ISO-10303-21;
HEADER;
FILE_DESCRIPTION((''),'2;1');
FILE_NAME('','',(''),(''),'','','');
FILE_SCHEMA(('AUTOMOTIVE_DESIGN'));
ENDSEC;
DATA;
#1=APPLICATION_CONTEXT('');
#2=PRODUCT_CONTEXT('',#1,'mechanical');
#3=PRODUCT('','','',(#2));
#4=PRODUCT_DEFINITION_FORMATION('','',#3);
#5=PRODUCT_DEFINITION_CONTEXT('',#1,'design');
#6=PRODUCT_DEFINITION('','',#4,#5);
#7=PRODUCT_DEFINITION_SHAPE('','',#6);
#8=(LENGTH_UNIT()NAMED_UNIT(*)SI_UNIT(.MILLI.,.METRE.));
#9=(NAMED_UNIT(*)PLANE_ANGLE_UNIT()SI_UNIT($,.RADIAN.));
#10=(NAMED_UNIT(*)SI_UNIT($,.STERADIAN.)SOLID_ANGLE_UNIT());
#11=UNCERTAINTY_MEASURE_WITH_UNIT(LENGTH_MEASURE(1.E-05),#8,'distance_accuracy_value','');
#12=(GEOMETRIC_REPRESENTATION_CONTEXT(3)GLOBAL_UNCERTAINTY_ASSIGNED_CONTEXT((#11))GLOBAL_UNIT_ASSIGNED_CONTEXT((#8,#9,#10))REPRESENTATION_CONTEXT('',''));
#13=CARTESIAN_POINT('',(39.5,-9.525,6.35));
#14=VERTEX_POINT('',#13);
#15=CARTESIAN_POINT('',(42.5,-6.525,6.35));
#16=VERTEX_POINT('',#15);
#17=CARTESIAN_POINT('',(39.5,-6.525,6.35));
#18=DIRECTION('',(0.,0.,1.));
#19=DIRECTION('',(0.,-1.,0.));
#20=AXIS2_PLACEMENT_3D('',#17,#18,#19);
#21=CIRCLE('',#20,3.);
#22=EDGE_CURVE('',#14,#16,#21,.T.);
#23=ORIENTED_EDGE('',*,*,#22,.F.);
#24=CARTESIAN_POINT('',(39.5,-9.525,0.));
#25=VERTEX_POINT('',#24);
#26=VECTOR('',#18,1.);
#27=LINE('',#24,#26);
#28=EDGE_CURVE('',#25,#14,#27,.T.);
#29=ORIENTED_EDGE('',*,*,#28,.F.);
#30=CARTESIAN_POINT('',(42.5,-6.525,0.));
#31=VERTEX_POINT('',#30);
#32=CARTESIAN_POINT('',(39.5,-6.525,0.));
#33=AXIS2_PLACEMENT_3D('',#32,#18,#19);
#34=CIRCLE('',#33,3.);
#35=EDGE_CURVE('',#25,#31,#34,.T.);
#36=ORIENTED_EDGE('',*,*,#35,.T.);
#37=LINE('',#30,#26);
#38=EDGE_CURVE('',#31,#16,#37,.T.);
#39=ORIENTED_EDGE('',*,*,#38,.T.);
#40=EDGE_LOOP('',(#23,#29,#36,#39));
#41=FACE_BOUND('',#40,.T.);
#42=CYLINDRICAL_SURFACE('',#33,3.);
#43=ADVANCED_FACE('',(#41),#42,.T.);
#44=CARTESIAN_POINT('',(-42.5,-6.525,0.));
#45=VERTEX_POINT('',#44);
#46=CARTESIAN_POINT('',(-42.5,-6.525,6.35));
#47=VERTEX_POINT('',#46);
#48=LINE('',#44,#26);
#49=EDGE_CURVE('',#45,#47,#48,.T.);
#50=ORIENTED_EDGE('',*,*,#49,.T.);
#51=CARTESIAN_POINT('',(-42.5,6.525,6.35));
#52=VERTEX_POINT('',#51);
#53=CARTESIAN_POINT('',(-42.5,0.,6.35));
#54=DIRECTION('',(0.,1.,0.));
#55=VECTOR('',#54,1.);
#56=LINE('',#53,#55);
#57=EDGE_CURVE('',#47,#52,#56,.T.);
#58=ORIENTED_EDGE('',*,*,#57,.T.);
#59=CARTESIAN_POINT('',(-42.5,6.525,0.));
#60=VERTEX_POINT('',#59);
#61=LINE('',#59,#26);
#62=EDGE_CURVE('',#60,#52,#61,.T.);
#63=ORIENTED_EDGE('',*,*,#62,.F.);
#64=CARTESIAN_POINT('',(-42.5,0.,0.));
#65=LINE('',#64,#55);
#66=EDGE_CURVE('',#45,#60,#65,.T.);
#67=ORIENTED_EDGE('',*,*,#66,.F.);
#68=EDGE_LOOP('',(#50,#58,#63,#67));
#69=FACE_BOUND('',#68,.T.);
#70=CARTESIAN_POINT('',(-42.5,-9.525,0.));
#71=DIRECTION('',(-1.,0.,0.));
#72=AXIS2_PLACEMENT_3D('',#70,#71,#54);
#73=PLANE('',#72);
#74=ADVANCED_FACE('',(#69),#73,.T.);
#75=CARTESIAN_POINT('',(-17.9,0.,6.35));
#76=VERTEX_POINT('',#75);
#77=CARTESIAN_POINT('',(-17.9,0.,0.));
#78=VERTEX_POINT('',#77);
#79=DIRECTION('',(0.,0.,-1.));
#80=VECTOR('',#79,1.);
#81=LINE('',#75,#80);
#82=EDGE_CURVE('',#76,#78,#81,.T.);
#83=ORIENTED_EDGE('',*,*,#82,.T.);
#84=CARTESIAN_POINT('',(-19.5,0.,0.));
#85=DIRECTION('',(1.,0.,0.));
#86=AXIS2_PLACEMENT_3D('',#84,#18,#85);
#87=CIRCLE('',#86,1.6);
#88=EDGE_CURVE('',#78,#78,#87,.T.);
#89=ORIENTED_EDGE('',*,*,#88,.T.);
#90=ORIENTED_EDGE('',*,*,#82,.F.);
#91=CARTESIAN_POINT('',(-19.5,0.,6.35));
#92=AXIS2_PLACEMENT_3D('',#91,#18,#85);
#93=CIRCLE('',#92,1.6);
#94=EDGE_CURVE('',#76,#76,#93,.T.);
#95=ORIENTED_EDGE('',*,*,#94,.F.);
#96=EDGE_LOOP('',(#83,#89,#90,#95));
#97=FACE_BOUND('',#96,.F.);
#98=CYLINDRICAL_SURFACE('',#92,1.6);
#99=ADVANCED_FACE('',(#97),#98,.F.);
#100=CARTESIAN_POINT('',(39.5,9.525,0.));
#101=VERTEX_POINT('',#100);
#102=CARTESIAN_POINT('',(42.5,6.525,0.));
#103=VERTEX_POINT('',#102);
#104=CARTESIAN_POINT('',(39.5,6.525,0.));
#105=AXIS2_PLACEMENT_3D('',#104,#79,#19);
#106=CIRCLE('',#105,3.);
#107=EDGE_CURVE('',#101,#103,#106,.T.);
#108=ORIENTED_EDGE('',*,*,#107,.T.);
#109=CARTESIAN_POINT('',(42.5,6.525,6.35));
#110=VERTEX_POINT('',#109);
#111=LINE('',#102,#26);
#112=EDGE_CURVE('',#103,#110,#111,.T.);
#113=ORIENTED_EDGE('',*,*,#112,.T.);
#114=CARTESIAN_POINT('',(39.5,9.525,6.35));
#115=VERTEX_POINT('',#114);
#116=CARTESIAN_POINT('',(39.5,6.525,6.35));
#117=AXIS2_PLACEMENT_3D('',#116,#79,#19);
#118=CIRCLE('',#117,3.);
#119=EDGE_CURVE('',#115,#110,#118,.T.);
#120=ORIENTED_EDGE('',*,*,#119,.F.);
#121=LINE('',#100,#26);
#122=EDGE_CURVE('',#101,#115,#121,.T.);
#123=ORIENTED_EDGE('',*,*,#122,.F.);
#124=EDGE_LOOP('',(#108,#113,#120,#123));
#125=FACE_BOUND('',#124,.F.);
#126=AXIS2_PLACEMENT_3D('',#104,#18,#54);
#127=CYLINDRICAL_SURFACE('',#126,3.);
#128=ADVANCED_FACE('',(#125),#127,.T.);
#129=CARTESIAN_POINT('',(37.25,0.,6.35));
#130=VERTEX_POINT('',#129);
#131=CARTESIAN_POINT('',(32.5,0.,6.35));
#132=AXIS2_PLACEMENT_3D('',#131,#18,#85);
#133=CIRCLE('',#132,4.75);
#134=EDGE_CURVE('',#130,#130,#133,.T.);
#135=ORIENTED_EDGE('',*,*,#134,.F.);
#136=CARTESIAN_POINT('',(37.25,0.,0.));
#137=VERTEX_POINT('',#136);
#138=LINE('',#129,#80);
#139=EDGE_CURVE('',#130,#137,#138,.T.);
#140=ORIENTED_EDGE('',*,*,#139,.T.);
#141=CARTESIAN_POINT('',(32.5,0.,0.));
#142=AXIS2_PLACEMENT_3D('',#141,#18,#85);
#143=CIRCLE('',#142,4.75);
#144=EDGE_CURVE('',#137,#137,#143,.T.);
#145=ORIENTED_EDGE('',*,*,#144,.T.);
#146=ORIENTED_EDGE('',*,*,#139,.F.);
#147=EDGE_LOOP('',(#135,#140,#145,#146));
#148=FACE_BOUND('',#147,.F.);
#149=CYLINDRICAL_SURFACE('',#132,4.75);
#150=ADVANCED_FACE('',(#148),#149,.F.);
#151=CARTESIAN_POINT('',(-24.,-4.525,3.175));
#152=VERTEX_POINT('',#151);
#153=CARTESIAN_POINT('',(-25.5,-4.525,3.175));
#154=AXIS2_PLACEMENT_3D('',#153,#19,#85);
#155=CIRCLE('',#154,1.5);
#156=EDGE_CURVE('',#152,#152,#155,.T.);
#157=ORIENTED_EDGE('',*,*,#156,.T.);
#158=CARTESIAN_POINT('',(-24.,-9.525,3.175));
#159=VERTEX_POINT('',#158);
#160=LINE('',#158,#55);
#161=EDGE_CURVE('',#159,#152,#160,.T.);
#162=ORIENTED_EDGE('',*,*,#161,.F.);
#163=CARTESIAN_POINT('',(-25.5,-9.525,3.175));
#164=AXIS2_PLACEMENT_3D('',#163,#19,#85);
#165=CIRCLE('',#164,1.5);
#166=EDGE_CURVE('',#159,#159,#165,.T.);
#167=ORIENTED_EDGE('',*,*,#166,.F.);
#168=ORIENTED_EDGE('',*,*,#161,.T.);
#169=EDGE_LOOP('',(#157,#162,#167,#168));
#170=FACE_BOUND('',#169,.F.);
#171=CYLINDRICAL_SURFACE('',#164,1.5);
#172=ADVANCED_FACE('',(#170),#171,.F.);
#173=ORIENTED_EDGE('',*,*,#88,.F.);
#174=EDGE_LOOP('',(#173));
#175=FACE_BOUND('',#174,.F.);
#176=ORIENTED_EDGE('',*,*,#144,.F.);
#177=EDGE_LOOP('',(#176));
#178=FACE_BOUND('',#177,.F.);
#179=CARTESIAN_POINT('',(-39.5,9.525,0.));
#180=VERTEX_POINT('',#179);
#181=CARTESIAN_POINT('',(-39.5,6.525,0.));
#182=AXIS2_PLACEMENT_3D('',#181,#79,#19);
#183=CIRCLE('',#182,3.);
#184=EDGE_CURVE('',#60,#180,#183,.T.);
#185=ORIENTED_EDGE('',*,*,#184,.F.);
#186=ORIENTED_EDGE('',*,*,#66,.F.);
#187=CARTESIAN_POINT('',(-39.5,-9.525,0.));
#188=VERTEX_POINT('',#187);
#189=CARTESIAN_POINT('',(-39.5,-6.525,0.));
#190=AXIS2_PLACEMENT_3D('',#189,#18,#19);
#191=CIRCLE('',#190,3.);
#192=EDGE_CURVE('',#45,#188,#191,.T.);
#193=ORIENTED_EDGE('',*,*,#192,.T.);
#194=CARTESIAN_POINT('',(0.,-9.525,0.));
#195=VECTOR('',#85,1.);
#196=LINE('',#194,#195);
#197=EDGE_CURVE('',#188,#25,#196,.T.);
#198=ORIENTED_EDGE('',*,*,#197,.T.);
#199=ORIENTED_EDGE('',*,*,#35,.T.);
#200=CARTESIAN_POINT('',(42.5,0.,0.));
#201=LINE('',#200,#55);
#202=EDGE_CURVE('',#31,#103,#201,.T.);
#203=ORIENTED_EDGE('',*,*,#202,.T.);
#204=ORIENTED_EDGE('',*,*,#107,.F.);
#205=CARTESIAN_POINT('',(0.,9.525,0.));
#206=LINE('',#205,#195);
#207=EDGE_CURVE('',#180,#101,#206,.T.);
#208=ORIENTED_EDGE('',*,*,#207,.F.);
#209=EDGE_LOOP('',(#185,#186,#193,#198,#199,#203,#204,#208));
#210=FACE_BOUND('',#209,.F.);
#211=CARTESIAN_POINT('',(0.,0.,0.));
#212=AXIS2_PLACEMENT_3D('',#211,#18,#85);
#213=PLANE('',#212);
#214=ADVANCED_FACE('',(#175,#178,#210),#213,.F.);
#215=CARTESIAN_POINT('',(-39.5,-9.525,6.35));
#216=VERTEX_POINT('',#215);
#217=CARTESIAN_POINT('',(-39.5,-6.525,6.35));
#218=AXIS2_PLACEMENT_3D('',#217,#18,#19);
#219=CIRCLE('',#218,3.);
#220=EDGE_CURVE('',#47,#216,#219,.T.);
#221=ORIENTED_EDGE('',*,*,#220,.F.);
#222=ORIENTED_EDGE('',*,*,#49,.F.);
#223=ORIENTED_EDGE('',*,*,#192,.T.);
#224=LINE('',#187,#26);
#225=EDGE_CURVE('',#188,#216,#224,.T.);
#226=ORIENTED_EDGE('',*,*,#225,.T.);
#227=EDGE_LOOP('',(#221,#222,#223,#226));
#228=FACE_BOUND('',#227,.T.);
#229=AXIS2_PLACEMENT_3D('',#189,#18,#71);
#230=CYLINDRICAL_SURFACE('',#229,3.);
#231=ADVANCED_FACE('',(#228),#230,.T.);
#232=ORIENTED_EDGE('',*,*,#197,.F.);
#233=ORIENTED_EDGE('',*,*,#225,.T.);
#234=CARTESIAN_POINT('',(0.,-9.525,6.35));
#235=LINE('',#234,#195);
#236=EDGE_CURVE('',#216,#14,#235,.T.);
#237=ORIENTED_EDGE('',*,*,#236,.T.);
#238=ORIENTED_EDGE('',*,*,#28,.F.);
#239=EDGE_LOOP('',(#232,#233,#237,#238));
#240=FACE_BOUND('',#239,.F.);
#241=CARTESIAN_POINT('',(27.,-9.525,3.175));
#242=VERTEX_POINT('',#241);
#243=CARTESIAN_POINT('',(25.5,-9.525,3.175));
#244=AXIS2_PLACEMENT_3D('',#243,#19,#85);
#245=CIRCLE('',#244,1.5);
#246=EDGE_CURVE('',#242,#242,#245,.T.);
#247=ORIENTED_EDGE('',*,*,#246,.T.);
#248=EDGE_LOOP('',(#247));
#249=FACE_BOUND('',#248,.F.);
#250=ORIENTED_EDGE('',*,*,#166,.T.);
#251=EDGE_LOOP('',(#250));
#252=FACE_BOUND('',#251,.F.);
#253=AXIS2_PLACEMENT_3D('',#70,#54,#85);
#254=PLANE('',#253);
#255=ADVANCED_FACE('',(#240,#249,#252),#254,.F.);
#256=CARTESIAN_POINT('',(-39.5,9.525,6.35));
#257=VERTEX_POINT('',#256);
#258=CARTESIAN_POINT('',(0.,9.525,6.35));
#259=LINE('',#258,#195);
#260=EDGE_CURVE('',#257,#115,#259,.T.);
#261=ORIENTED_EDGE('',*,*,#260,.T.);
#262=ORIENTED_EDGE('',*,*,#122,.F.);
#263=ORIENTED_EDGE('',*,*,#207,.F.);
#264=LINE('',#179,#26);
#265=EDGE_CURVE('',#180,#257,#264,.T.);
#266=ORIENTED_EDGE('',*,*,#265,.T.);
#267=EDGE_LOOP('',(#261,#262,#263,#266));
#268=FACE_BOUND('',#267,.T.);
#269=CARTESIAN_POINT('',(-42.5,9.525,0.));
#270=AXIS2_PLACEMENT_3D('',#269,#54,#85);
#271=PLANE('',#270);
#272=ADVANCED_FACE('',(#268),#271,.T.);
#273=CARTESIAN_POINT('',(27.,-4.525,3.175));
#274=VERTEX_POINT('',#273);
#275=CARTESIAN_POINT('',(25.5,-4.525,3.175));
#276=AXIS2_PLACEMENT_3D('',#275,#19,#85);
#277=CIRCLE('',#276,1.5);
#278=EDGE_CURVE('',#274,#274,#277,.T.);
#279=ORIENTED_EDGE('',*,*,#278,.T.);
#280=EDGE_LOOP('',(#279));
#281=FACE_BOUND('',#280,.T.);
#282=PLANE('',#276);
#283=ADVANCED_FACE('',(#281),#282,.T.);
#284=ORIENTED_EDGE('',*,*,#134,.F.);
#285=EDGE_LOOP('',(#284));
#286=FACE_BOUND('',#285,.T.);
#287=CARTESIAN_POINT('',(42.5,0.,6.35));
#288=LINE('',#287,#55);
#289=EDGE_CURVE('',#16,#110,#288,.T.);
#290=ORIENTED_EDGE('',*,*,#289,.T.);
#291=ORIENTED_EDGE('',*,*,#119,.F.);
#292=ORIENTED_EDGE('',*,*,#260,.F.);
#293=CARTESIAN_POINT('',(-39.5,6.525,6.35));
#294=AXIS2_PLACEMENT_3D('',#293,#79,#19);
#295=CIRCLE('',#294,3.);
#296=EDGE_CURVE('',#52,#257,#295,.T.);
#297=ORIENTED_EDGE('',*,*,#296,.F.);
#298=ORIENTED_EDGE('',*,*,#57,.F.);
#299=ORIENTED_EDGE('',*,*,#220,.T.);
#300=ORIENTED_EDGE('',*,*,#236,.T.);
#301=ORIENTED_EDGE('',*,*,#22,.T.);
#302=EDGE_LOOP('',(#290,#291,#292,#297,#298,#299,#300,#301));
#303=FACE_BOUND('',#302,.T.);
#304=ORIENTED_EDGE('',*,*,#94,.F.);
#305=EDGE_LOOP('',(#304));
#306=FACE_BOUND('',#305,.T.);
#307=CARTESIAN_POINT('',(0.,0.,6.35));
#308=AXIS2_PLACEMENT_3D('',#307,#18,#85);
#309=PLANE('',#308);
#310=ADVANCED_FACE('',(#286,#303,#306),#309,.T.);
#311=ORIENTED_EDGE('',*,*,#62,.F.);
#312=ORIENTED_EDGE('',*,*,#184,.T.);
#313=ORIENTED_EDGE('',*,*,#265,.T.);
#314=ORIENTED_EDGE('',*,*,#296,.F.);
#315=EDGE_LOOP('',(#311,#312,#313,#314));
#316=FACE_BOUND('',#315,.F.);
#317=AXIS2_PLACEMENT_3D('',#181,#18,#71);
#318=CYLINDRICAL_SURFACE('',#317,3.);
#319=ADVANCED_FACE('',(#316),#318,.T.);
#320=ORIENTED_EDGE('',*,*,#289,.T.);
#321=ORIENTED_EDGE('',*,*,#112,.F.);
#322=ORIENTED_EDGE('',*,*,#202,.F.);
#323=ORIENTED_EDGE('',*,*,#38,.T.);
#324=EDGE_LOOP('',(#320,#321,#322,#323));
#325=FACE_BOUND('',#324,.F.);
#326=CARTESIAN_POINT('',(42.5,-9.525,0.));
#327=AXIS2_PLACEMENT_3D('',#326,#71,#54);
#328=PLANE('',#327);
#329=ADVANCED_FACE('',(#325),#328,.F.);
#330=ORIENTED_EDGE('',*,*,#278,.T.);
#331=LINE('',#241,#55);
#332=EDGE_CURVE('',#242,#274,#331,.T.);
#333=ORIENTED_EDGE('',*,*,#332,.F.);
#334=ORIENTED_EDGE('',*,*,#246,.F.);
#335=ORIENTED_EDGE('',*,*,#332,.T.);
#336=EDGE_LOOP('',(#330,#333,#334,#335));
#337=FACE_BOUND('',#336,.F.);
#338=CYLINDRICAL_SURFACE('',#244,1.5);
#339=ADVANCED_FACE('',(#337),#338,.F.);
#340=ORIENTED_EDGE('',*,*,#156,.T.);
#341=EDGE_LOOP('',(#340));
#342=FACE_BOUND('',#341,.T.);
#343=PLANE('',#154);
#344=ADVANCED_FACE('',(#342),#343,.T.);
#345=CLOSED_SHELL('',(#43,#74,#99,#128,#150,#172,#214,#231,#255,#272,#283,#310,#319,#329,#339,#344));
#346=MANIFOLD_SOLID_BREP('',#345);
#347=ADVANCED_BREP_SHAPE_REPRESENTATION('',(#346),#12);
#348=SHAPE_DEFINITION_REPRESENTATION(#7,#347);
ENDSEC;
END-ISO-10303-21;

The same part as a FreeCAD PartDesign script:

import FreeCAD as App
import Part
import Sketcher

V = App.Vector
Q = App.Units.Quantity


def edges_at(feature, points):
    """Names of the edges that pass closest to the given points."""
    edges = feature.Shape.Edges
    near = lambda p: min(range(len(edges)), key=lambda i: edges[i].distToShape(Part.Vertex(*p))[0])
    return sorted({f"Edge{near(p) + 1}" for p in points})

doc = App.newDocument("Part")
params = doc.addObject("Spreadsheet::Sheet", "Params")
for row, (alias, value) in enumerate([
    ("sketch1_width", "85 mm"),
    ("sketch1_height", "19.05 mm"),
    ("pad1_length", "6.35 mm"),
    ("sketch2_diameter", "3 mm"),
    ("pocket1_length", "5 mm"),
    ("sketch3_diameter", "3 mm"),
    ("pocket2_length", "5 mm"),
    ("fillet_radius", "3 mm"),
    ("fillet2_radius", "3 mm"),
    ("fillet3_radius", "3 mm"),
    ("sketch4_diameter", "3.2 mm"),
    ("sketch4_diameter2", "9.5 mm"),
    ("pocket3_length", "25 mm"),
], start=1):
    params.set(f"A{row}", alias)
    params.set(f"B{row}", "=" + value)
    params.setAlias(f"B{row}", alias)

body = doc.addObject("PartDesign::Body", "Body")

# Sketch on XY plane
sketch1 = body.newObject("Sketcher::SketchObject", "Sketch")
sketch1.AttachmentSupport = (doc.getObject("XY_Plane"), [""])
sketch1.MapMode = "FlatFace"
sketch1.addGeometry(Part.LineSegment(V(-42, 10, 0), V(-42, -10, 0)), False)
sketch1.addGeometry(Part.LineSegment(V(-42, -10, 0), V(42, -10, 0)), False)
sketch1.addGeometry(Part.LineSegment(V(42, -10, 0), V(42, 10, 0)), False)
sketch1.addGeometry(Part.LineSegment(V(42, 10, 0), V(-42, 10, 0)), False)
sketch1.addConstraint(Sketcher.Constraint("Coincident", 0, 2, 1, 1))
sketch1.addConstraint(Sketcher.Constraint("Coincident", 1, 2, 2, 1))
sketch1.addConstraint(Sketcher.Constraint("Coincident", 2, 2, 3, 1))
sketch1.addConstraint(Sketcher.Constraint("Coincident", 3, 2, 0, 1))
sketch1.addConstraint(Sketcher.Constraint("Vertical", 0))
sketch1.addConstraint(Sketcher.Constraint("Horizontal", 1))
sketch1.addConstraint(Sketcher.Constraint("Vertical", 2))
sketch1.addConstraint(Sketcher.Constraint("Horizontal", 3))
sketch1.addConstraint(Sketcher.Constraint("Symmetric", 0, 2, 2, 2, -1, 1))
sketch1.addConstraint(Sketcher.Constraint("DistanceX", 1, 1, 1, 2, Q("85 mm")))
sketch1.addConstraint(Sketcher.Constraint("DistanceY", 0, 2, 0, 1, Q("19.05 mm")))
sketch1.setExpression("Constraints[9]", "Params.sketch1_width")
sketch1.setExpression("Constraints[10]", "Params.sketch1_height")
pad1 = body.newObject("PartDesign::Pad", "Pad")
pad1.Profile = sketch1
pad1.setExpression("Length", "Params.pad1_length")

# Sketch on XZ plane
sketch2 = body.newObject("Sketcher::SketchObject", "Sketch001")
sketch2.AttachmentSupport = (doc.getObject("XZ_Plane"), [""])
sketch2.MapMode = "FlatFace"
sketch2.AttachmentOffset = App.Placement(V(0, 0, 9.525), App.Rotation())
sketch2.addGeometry(Part.Circle(V(-25.5, 3.2, 0), V(0, 0, 1), 1.5), False)
sketch2.addConstraint(Sketcher.Constraint("Diameter", 0, Q("3 mm")))
sketch2.addConstraint(Sketcher.Constraint("DistanceX", 0, 3, -1, 1, Q("25.5 mm")))
sketch2.addConstraint(Sketcher.Constraint("DistanceY", -1, 1, 0, 3, Q("3.175 mm")))
sketch2.setExpression("Constraints[0]", "Params.sketch2_diameter")
pocket1 = body.newObject("PartDesign::Pocket", "Pocket")
pocket1.Profile = sketch2
pocket1.setExpression("Length", "Params.pocket1_length")

# Sketch on XZ plane
sketch3 = body.newObject("Sketcher::SketchObject", "Sketch002")
sketch3.AttachmentSupport = (doc.getObject("XZ_Plane"), [""])
sketch3.MapMode = "FlatFace"
sketch3.AttachmentOffset = App.Placement(V(0, 0, 9.525), App.Rotation())
sketch3.addGeometry(Part.Circle(V(25.5, 3.2, 0), V(0, 0, 1), 1.5), False)
sketch3.addConstraint(Sketcher.Constraint("Diameter", 0, Q("3 mm")))
sketch3.addConstraint(Sketcher.Constraint("DistanceX", -1, 1, 0, 3, Q("25.5 mm")))
sketch3.addConstraint(Sketcher.Constraint("DistanceY", -1, 1, 0, 3, Q("3.175 mm")))
sketch3.setExpression("Constraints[0]", "Params.sketch3_diameter")
pocket2 = body.newObject("PartDesign::Pocket", "Pocket001")
pocket2.Profile = sketch3
pocket2.setExpression("Length", "Params.pocket2_length")
doc.recompute()

fillet = body.newObject("PartDesign::Fillet", "Fillet")
fillet.Base = (pocket2, edges_at(pocket2, [(-42.5, 9.525, 3.175)]))
fillet.setExpression("Radius", "Params.fillet_radius")
doc.recompute()

fillet2 = body.newObject("PartDesign::Fillet", "Fillet001")
fillet2.Base = (fillet, edges_at(fillet, [(-42.5, -9.525, 3.175)]))
fillet2.setExpression("Radius", "Params.fillet2_radius")
doc.recompute()

fillet3 = body.newObject("PartDesign::Fillet", "Fillet002")
fillet3.Base = (fillet2, edges_at(fillet2, [(42.5, 9.525, 3.175), (42.5, -9.525, 3.175)]))
fillet3.setExpression("Radius", "Params.fillet3_radius")

# Sketch on XY plane
sketch4 = body.newObject("Sketcher::SketchObject", "Sketch003")
sketch4.AttachmentSupport = (doc.getObject("XY_Plane"), [""])
sketch4.MapMode = "FlatFace"
sketch4.AttachmentOffset = App.Placement(V(0, 0, 6.35), App.Rotation())
sketch4.addGeometry(Part.Circle(V(-19.5, 0, 0), V(0, 0, 1), 1.6), False)
sketch4.addGeometry(Part.Circle(V(32.5, 0, 0), V(0, 0, 1), 4.8), False)
sketch4.addConstraint(Sketcher.Constraint("PointOnObject", 0, 3, -1))
sketch4.addConstraint(Sketcher.Constraint("PointOnObject", 1, 3, -1))
sketch4.addConstraint(Sketcher.Constraint("Diameter", 0, Q("3.2 mm")))
sketch4.addConstraint(Sketcher.Constraint("Diameter", 1, Q("9.5 mm")))
sketch4.addConstraint(Sketcher.Constraint("DistanceX", 0, 3, 1, 3, Q("52 mm")))
sketch4.addConstraint(Sketcher.Constraint("DistanceX", 0, 3, -1, 1, Q("19.5 mm")))
sketch4.setExpression("Constraints[2]", "Params.sketch4_diameter")
sketch4.setExpression("Constraints[3]", "Params.sketch4_diameter2")
pocket3 = body.newObject("PartDesign::Pocket", "Pocket002")
pocket3.Profile = sketch4
pocket3.setExpression("Length", "Params.pocket3_length")

doc.recompute()
